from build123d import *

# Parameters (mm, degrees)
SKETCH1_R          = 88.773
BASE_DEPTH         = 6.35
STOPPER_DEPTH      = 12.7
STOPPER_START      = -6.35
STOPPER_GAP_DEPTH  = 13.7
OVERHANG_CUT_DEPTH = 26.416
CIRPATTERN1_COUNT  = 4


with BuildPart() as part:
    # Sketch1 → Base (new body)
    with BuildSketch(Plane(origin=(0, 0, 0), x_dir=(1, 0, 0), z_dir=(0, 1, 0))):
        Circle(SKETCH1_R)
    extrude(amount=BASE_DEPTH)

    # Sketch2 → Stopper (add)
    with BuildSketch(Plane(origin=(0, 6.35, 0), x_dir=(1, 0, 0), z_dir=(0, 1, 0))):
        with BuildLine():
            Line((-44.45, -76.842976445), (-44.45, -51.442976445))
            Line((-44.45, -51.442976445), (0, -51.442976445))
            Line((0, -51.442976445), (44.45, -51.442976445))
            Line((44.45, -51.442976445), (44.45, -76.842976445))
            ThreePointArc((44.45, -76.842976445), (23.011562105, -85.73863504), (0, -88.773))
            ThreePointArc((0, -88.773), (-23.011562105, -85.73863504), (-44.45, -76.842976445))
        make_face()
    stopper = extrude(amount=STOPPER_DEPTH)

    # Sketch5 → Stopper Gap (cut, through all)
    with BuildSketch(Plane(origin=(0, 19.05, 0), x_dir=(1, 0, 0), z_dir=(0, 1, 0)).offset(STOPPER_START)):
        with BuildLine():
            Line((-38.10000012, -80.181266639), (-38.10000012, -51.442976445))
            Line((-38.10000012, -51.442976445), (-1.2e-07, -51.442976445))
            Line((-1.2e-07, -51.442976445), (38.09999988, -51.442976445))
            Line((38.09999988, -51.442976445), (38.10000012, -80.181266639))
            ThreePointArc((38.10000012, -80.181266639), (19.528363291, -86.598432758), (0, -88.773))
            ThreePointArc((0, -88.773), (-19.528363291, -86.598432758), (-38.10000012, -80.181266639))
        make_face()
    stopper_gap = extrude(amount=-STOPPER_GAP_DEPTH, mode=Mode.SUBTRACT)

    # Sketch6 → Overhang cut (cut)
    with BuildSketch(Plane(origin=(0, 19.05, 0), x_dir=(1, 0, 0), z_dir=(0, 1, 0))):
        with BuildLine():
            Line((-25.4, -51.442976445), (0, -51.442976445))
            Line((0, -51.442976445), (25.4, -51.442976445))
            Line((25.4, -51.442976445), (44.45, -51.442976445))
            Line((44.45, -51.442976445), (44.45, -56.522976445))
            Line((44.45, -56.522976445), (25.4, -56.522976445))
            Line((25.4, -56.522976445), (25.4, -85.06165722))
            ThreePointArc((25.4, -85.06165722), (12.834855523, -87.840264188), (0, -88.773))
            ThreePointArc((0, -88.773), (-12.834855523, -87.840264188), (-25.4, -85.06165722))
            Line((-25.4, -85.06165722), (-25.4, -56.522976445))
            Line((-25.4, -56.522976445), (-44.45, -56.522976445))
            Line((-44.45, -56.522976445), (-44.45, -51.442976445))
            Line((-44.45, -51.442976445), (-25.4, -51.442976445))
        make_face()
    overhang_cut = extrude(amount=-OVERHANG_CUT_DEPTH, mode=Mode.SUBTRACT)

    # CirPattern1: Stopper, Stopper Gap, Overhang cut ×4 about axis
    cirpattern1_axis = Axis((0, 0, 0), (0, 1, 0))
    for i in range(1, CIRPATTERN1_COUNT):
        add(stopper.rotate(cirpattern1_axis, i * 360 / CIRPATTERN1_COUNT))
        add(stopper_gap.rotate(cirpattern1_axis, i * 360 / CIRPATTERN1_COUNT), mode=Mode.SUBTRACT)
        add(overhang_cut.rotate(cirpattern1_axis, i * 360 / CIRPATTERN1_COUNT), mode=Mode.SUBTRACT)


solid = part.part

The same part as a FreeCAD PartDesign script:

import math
import FreeCAD as App
import Part
import Sketcher

V = App.Vector
Q = App.Units.Quantity

doc = App.newDocument("Part")
params = doc.addObject("Spreadsheet::Sheet", "Params")
for row, (alias, value) in enumerate([
    ("sketch1_diameter", "6.99 in"),
    ("pad1_length", "0.25 in"),
    ("sketch2_height", "1 in"),
    ("sketch2_width", "3.5 in"),
    ("sketch2_radius", "3.495 in"),
    ("pad2_length", "0.5 in"),
    ("sketch3_width", "3 in"),
    ("sketch3_radius", "3.495 in"),
    ("sketch4_width", "3.5 in"),
    ("sketch4_height", "0.2 in"),
    ("sketch4_radius", "3.495 in"),
    ("pocket2_length", "1.04 in"),
], start=1):
    params.set(f"A{row}", alias)
    params.set(f"B{row}", "=" + value)
    params.setAlias(f"B{row}", alias)

body = doc.addObject("PartDesign::Body", "Body")

sketch1 = body.newObject("Sketcher::SketchObject", "Sketch")
sketch1.AttachmentSupport = (doc.getObject("XZ_Plane"), [""])
sketch1.MapMode = "FlatFace"
sketch1.addGeometry(Part.Circle(V(0, 0, 0), V(0, 0, 1), 89), False)
sketch1.addConstraint([
    Sketcher.Constraint("Coincident", 0, 3, -1, 1),
    Sketcher.Constraint("Diameter", 0, Q("6.99 in")),
])
sketch1.setExpression("Constraints[1]", "Params.sketch1_diameter")
pad1 = body.newObject("PartDesign::Pad", "Pad")
pad1.Profile = sketch1
pad1.setExpression("Length", "Params.pad1_length")
pad1.Reversed = True

sketch2 = body.newObject("Sketcher::SketchObject", "Sketch001")
sketch2.AttachmentSupport = (doc.getObject("XZ_Plane"), [""])
sketch2.MapMode = "FlatFace"
sketch2.AttachmentOffset = App.Placement(V(0, 0, -0.25 * 25.4), App.Rotation())
sketch2.addGeometry([
    Part.LineSegment(V(-44, 51, 0), V(-44, 77, 0)),
    Part.ArcOfCircle(Part.Circle(V(0, 0, 0), V(0, 0, 1), 89), math.radians(90), math.radians(120)),
    Part.ArcOfCircle(Part.Circle(V(0, 0, 0), V(0, 0, 1), 89), math.radians(60), math.radians(90)),
    Part.LineSegment(V(44, 77, 0), V(44, 51, 0)),
    Part.LineSegment(V(44, 51, 0), V(-44, 51, 0)),
], False)
sketch2.addConstraint([
    Sketcher.Constraint("Coincident", 0, 2, 1, 2),
    Sketcher.Constraint("Tangent", 1, 1, 2, 2),
    Sketcher.Constraint("Coincident", 2, 1, 3, 1),
    Sketcher.Constraint("Coincident", 3, 2, 4, 1),
    Sketcher.Constraint("Coincident", 4, 2, 0, 1),
    Sketcher.Constraint("Vertical", 0),
    Sketcher.Constraint("Vertical", 3),
    Sketcher.Constraint("Horizontal", 4),
    Sketcher.Constraint("Coincident", 1, 3, -1, 1),
    Sketcher.Constraint("Equal", 1, 2),
    Sketcher.Constraint("PointOnObject", 1, 1, -2),
    Sketcher.Constraint("Horizontal", 0, 2, 2, 1),
    Sketcher.Constraint("DistanceY", 0, 1, 0, 2, Q("1 in")),
    Sketcher.Constraint("DistanceX", 4, 2, 4, 1, Q("3.5 in")),
    Sketcher.Constraint("Radius", 1, Q("3.495 in")),
])
sketch2.setExpression("Constraints[12]", "Params.sketch2_height")
sketch2.setExpression("Constraints[13]", "Params.sketch2_width")
sketch2.setExpression("Constraints[14]", "Params.sketch2_radius")
pad2 = body.newObject("PartDesign::Pad", "Pad001")
pad2.Profile = sketch2
pad2.setExpression("Length", "Params.pad2_length")
pad2.Reversed = True

sketch3 = body.newObject("Sketcher::SketchObject", "Sketch002")
sketch3.AttachmentSupport = (doc.getObject("XZ_Plane"), [""])
sketch3.MapMode = "FlatFace"
sketch3.AttachmentOffset = App.Placement(V(0, 0, -0.5 * 25.4), App.Rotation())
sketch3.addGeometry([
    Part.LineSegment(V(-38, 51, 0), V(-38, 80, 0)),
    Part.ArcOfCircle(Part.Circle(V(0, 0, 0), V(0, 0, 1), 89), math.radians(90), math.radians(115)),
    Part.ArcOfCircle(Part.Circle(V(0, 0, 0), V(0, 0, 1), 89), math.radians(65), math.radians(90)),
    Part.LineSegment(V(38, 80, 0), V(38, 51, 0)),
    Part.LineSegment(V(38, 51, 0), V(-38, 51, 0)),
], False)
sketch3.addConstraint([
    Sketcher.Constraint("Coincident", 0, 2, 1, 2),
    Sketcher.Constraint("Tangent", 1, 1, 2, 2),
    Sketcher.Constraint("Coincident", 2, 1, 3, 1),
    Sketcher.Constraint("Coincident", 3, 2, 4, 1),
    Sketcher.Constraint("Coincident", 4, 2, 0, 1),
    Sketcher.Constraint("Vertical", 0),
    Sketcher.Constraint("Vertical", 3),
    Sketcher.Constraint("Horizontal", 4),
    Sketcher.Constraint("Coincident", 1, 3, -1, 1),
    Sketcher.Constraint("Equal", 1, 2),
    Sketcher.Constraint("PointOnObject", 1, 1, -2),
    Sketcher.Constraint("Horizontal", 0, 2, 2, 1),
    Sketcher.Constraint("DistanceX", 4, 2, 4, 1, Q("3 in")),
    Sketcher.Constraint("Radius", 1, Q("3.495 in")),
    Sketcher.Constraint("DistanceY", 0, 1, 0, 2, Q("28.73829 mm")),
])
sketch3.setExpression("Constraints[12]", "Params.sketch3_width")
sketch3.setExpression("Constraints[13]", "Params.sketch3_radius")
pocket1 = body.newObject("PartDesign::Pocket", "Pocket")
pocket1.Profile = sketch3
pocket1.Type = "ThroughAll"
pocket1.Reversed = True

sketch4 = body.newObject("Sketcher::SketchObject", "Sketch003")
sketch4.AttachmentSupport = (doc.getObject("XZ_Plane"), [""])
sketch4.MapMode = "FlatFace"
sketch4.AttachmentOffset = App.Placement(V(0, 0, -0.75 * 25.4), App.Rotation())
sketch4.addGeometry([
    Part.LineSegment(V(44, 57, 0), V(44, 51, 0)),
    Part.LineSegment(V(44, 51, 0), V(-44, 51, 0)),
    Part.LineSegment(V(-44, 51, 0), V(-44, 57, 0)),
    Part.LineSegment(V(-44, 57, 0), V(-25, 57, 0)),
    Part.LineSegment(V(-25, 57, 0), V(-25, 85, 0)),
    Part.ArcOfCircle(Part.Circle(V(0, 0, 0), V(0, 0, 1), 89), math.radians(90), math.radians(106.63)),
    Part.ArcOfCircle(Part.Circle(V(0, 0, 0), V(0, 0, 1), 89), math.radians(73.37), math.radians(90)),
    Part.LineSegment(V(25, 85, 0), V(25, 57, 0)),
    Part.LineSegment(V(25, 57, 0), V(44, 57, 0)),
], False)
sketch4.addConstraint([
    Sketcher.Constraint("Coincident", 0, 2, 1, 1),
    Sketcher.Constraint("Coincident", 1, 2, 2, 1),
    Sketcher.Constraint("Coincident", 2, 2, 3, 1),
    Sketcher.Constraint("Coincident", 3, 2, 4, 1),
    Sketcher.Constraint("Coincident", 4, 2, 5, 2),
    Sketcher.Constraint("Tangent", 5, 1, 6, 2),
    Sketcher.Constraint("Coincident", 6, 1, 7, 1),
    Sketcher.Constraint("Coincident", 7, 2, 8, 1),
    Sketcher.Constraint("Coincident", 8, 2, 0, 1),
    Sketcher.Constraint("Vertical", 0),
    Sketcher.Constraint("Horizontal", 1),
    Sketcher.Constraint("Vertical", 2),
    Sketcher.Constraint("Horizontal", 3),
    Sketcher.Constraint("Vertical", 4),
    Sketcher.Constraint("Vertical", 7),
    Sketcher.Constraint("Horizontal", 8),
    Sketcher.Constraint("Coincident", 5, 3, -1, 1),
    Sketcher.Constraint("Equal", 5, 6),
    Sketcher.Constraint("Symmetric", 3, 2, 7, 2, -2),
    Sketcher.Constraint("PointOnObject", 5, 1, -2),
    Sketcher.Constraint("Equal", 3, 8),
    Sketcher.Constraint("DistanceX", 1, 2, 1, 1, Q("3.5 in")),
    Sketcher.Constraint("DistanceY", 0, 2, 0, 1, Q("0.2 in")),
    Sketcher.Constraint("DistanceX", 3, 2, -1, 1, Q("1 in")),
    Sketcher.Constraint("Radius", 5, Q("3.495 in")),
    Sketcher.Constraint("DistanceY", 4, 1, 4, 2, Q("28.538681 mm")),
])
sketch4.setExpression("Constraints[21]", "Params.sketch4_width")
sketch4.setExpression("Constraints[22]", "Params.sketch4_height")
sketch4.setExpression("Constraints[24]", "Params.sketch4_radius")
pocket2 = body.newObject("PartDesign::Pocket", "Pocket001")
pocket2.Profile = sketch4
pocket2.setExpression("Length", "Params.pocket2_length")
pocket2.Reversed = True
doc.recompute()

polarpattern = body.newObject("PartDesign::PolarPattern", "PolarPattern")
polarpattern.Originals = [pad2, pocket1, pocket2]
polarpattern.Axis = (doc.getObject("Y_Axis"), [""])
polarpattern.Angle = 360
polarpattern.Occurrences = 4
body.Tip = polarpattern

doc.recompute()
